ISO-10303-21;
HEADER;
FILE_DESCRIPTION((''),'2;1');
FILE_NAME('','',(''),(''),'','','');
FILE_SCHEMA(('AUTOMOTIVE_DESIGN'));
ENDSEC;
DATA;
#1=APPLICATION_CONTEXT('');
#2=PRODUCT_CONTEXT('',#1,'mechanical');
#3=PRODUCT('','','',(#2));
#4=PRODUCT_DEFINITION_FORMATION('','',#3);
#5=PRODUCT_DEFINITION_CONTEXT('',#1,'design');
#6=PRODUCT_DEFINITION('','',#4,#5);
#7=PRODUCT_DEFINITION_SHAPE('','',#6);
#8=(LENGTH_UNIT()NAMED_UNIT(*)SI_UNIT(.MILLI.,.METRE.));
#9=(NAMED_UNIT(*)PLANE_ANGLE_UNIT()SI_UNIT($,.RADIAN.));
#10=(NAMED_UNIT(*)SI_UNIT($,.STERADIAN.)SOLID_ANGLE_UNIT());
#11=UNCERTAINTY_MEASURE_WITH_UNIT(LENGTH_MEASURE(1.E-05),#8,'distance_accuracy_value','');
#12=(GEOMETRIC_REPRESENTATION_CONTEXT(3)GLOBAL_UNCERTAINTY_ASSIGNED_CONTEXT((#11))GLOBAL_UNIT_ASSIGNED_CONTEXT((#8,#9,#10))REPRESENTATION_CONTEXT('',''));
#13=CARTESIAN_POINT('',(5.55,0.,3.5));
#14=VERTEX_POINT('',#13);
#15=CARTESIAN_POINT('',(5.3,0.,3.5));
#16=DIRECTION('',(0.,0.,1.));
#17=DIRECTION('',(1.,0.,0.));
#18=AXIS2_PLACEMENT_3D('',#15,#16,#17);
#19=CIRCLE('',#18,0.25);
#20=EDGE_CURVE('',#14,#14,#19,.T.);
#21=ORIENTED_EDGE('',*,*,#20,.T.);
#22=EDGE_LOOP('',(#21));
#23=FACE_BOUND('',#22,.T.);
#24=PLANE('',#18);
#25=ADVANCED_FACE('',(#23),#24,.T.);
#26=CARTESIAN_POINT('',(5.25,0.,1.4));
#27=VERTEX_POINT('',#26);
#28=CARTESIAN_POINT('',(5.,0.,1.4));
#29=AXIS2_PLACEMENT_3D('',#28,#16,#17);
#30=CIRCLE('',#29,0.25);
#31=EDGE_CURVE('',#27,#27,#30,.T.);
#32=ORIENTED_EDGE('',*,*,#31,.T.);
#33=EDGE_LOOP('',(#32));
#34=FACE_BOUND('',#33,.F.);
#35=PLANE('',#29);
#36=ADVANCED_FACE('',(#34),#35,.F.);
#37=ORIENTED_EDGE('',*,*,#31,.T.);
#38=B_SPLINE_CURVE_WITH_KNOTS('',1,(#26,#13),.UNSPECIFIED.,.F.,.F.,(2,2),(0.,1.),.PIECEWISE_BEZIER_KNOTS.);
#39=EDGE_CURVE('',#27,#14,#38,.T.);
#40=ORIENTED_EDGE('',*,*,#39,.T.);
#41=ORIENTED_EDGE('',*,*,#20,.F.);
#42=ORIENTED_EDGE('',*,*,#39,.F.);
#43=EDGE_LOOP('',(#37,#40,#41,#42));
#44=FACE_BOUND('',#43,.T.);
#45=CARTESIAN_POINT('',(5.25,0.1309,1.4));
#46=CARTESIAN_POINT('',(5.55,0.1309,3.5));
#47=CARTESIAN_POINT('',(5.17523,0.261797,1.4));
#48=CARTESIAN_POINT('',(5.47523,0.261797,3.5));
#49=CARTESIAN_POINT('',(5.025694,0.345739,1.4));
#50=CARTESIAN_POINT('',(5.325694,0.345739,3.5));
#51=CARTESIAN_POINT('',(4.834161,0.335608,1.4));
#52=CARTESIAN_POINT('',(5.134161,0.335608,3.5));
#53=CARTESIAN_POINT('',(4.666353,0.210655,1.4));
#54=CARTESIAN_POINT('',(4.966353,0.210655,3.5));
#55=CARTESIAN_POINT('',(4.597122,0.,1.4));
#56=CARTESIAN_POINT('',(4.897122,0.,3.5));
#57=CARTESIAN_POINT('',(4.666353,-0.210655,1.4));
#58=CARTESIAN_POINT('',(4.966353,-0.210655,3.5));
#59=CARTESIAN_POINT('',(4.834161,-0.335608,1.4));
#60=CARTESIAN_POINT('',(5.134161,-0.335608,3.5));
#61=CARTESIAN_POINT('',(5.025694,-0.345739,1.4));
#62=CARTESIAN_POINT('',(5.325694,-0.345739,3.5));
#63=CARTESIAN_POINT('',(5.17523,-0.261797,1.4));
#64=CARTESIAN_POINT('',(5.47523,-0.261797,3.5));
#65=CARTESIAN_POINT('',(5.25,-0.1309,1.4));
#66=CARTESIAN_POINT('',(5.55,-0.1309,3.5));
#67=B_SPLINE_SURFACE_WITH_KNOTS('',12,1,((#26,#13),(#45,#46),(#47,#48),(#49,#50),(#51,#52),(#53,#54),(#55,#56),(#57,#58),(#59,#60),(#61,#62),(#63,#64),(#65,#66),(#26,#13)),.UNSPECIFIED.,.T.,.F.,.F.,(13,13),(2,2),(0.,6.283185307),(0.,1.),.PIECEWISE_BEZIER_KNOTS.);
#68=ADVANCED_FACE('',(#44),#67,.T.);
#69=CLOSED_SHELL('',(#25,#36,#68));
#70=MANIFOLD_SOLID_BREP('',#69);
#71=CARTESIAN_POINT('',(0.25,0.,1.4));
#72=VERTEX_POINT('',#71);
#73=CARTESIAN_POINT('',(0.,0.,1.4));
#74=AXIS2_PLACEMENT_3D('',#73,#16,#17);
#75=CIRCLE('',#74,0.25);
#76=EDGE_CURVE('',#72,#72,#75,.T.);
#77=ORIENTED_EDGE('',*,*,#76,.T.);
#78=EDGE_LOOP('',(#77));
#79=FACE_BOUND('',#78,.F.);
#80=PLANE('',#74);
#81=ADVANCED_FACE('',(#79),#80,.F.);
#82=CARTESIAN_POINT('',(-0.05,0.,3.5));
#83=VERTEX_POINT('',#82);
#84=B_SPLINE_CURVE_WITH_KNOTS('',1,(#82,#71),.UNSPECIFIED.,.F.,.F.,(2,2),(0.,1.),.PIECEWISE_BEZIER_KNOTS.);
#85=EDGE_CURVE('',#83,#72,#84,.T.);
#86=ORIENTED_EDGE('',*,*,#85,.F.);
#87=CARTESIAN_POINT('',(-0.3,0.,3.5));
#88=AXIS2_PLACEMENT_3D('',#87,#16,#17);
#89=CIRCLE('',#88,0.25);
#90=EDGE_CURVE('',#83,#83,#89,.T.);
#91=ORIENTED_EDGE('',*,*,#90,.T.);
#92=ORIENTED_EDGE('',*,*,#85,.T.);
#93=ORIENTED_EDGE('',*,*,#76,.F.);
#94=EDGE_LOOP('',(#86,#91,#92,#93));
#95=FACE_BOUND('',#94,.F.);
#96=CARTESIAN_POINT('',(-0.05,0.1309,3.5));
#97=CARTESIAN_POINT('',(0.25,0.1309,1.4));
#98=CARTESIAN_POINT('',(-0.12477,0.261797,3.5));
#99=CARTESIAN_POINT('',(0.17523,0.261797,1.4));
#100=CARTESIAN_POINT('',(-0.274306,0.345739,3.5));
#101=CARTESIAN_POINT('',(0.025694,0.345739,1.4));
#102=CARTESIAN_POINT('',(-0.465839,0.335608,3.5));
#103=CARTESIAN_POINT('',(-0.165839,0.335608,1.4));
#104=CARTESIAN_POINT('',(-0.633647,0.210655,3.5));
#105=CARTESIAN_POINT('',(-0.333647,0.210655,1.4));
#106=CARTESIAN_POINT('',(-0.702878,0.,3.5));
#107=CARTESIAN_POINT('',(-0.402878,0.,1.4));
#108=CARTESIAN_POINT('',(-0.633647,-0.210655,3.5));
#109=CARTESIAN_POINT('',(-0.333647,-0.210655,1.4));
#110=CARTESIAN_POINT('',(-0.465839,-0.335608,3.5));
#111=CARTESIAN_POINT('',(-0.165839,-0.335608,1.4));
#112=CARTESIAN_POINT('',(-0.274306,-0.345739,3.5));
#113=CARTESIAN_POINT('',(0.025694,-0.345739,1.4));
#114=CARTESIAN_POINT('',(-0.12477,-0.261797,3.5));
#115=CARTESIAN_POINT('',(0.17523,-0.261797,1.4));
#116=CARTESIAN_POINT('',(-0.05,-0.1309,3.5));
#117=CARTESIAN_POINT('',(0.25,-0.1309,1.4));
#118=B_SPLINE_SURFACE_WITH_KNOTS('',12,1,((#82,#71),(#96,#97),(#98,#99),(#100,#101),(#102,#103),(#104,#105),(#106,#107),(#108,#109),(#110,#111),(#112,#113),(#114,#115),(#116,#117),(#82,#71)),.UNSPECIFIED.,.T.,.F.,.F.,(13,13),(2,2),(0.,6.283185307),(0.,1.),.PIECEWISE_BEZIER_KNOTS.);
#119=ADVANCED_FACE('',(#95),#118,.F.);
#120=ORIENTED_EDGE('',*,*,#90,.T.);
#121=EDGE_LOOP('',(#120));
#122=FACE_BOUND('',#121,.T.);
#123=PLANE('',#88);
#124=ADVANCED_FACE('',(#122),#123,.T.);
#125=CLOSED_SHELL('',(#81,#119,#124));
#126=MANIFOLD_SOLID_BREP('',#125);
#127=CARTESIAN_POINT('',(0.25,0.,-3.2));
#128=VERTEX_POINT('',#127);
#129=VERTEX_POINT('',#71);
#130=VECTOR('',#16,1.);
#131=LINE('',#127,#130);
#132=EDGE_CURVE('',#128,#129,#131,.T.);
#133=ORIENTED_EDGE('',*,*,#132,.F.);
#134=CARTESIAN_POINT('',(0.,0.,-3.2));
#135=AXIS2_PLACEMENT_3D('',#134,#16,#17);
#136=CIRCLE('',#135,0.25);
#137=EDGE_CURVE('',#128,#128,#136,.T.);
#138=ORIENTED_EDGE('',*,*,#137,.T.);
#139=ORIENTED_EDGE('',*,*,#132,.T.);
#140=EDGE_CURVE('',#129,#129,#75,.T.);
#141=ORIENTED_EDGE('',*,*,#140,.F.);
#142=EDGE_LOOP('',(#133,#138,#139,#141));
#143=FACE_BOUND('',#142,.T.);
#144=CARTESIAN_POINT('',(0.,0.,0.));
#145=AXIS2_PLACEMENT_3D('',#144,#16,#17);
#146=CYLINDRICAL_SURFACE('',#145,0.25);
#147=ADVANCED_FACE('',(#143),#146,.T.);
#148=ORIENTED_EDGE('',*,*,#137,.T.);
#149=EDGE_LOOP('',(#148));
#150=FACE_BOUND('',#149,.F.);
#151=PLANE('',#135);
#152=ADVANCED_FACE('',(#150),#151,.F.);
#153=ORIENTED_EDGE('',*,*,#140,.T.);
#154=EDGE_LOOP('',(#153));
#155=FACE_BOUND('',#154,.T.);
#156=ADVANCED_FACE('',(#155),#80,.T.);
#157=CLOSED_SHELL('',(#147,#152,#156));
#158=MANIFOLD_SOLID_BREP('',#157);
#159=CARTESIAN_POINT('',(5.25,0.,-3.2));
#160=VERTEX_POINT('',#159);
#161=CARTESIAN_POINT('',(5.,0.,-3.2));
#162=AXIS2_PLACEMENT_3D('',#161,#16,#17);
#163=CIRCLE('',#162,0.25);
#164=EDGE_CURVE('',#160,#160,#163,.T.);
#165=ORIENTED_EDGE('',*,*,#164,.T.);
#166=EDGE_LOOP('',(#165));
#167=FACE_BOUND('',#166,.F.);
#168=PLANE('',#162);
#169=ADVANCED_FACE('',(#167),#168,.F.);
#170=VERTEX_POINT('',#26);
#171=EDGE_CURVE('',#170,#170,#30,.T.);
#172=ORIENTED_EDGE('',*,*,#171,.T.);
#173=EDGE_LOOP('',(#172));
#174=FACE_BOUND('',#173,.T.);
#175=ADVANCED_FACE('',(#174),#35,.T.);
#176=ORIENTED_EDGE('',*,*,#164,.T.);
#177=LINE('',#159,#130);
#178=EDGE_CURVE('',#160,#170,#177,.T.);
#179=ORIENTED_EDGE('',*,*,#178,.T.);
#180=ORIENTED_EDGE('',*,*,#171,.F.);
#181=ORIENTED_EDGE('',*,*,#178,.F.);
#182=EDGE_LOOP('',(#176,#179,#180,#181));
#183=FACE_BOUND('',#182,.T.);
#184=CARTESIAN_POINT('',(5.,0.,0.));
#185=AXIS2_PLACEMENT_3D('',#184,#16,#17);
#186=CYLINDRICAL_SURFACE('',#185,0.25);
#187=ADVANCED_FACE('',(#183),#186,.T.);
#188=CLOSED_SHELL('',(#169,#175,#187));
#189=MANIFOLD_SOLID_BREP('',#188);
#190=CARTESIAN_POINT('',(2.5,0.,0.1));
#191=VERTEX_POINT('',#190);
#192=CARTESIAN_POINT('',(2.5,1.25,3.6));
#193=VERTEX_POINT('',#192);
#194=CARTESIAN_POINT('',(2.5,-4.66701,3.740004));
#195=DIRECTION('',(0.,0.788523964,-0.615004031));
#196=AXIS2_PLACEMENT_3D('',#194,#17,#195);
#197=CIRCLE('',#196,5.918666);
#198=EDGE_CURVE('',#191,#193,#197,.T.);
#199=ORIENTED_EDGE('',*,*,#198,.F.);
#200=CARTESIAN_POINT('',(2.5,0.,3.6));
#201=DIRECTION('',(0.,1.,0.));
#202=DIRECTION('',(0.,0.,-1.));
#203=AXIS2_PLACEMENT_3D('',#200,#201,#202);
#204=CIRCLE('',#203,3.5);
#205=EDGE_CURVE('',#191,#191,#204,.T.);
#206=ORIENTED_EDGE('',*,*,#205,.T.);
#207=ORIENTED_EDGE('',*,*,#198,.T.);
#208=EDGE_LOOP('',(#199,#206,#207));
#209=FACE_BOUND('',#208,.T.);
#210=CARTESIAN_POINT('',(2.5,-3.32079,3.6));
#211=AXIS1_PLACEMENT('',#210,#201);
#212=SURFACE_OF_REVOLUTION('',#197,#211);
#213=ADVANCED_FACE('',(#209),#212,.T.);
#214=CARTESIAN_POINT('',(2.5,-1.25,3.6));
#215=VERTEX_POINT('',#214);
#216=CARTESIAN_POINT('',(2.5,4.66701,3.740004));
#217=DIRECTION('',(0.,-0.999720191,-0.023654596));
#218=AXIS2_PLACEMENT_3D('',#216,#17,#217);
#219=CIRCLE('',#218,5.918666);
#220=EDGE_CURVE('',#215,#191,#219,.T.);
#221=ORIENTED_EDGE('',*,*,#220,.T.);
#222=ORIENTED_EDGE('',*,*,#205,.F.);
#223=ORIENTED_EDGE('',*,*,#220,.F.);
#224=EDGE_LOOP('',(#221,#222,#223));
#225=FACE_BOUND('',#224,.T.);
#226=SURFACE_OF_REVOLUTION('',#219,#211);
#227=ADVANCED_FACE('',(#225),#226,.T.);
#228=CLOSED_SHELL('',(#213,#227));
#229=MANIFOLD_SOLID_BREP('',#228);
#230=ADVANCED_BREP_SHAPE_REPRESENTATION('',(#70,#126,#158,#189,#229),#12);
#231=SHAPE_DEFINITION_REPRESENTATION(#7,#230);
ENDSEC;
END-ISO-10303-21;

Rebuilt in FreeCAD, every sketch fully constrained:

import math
import FreeCAD as App
import Part
import Sketcher
from FreeCAD import Vector
Q = App.Units.Quantity

doc = App.newDocument("Part")
body = doc.addObject("PartDesign::Body", "Body")
body.AllowCompound = True

sketch1 = body.newObject("Sketcher::SketchObject", "Sketch")
sketch1.AttachmentSupport = (doc.getObject("XY_Plane"), [""])
sketch1.MapMode = "FlatFace"
sketch1.addGeometry([
    Part.Circle(Vector(0, 0, 0), Vector(0, 0, 1), 0.25),
    Part.Circle(Vector(5, 0, 0), Vector(0, 0, 1), 0.25),
], False)
sketch1.addConstraint([
    Sketcher.Constraint("Coincident", 0, 3, -1, 1),
    Sketcher.Constraint("Equal", 0, 1),
    Sketcher.Constraint("PointOnObject", 1, 3, -1),
    Sketcher.Constraint("Diameter", 0, Q("0.5 mm")),
    Sketcher.Constraint("DistanceX", -1, 1, 1, 3, Q("5 mm")),
])
pad1 = body.newObject("PartDesign::Pad", "Pad")
pad1.Profile = sketch1
pad1.Type = "TwoLengths"
pad1.Length = 1.4
pad1.Length2 = 3.2
body2 = doc.addObject("PartDesign::Body", "Body001")

sketch2 = body2.newObject("Sketcher::SketchObject", "Sketch001")
sketch2.AttachmentSupport = (doc.getObject("YZ_Plane001"), [""])
sketch2.MapMode = "FlatFace"
sketch2.AttachmentOffset = App.Placement(Vector(0, 0, 2.5), App.Rotation())
sketch2.addGeometry([
    Part.LineSegment(Vector(1.2, 3.6, 0), Vector(-1.2, 3.6, 0)),
    Part.ArcOfCircle(Part.Circle(Vector(4.7, 3.7, 0), Vector(0, 0, 1), 5.9), math.radians(-179), math.radians(-142)),
    Part.ArcOfCircle(Part.Circle(Vector(-4.7, 3.7, 0), Vector(0, 0, 1), 5.9), math.radians(-38), math.radians(-1)),
], False)
sketch2.addGeometry(Part.LineSegment(Vector(-4.7, 3.6, 0), Vector(4.7, 3.6, 0)), True)
sketch2.addConstraint([
    Sketcher.Constraint("Coincident", 0, 2, 1, 1),
    Sketcher.Constraint("Coincident", 1, 2, 2, 1),
    Sketcher.Constraint("Coincident", 2, 2, 0, 1),
    Sketcher.Constraint("Horizontal", 0),
    Sketcher.Constraint("Horizontal", 3),
    Sketcher.Constraint("Equal", 1, 2),
    Sketcher.Constraint("Symmetric", 1, 3, 2, 3, -2),
    Sketcher.Constraint("Horizontal", 2, 2, 3, 1),
    Sketcher.Constraint("Vertical", 2, 3, 3, 1),
    Sketcher.Constraint("Vertical", 1, 3, 3, 2),
    Sketcher.Constraint("DistanceX", 0, 2, 0, 1, Q("2.5 mm")),
    Sketcher.Constraint("DistanceY", -1, 1, 0, 2, Q("3.6 mm")),
    Sketcher.Constraint("DistanceY", -1, 1, 1, 2, Q("0.1 mm")),
    Sketcher.Constraint("Radius", 1, Q("5.918666 mm")),
])
revolution = body2.newObject("PartDesign::Revolution", "Revolution")
revolution.Profile = sketch2
revolution.ReferenceAxis = (sketch2, ["Axis0"])
revolution.Angle = 360
body3 = doc.addObject("PartDesign::Body", "Body002")

sketch3 = body3.newObject("Sketcher::SketchObject", "Sketch002")
sketch3.AttachmentSupport = (doc.getObject("XY_Plane002"), [""])
sketch3.MapMode = "FlatFace"
sketch3.AttachmentOffset = App.Placement(Vector(0, 0, 3.5), App.Rotation())
sketch3.addGeometry(Part.Circle(Vector(-0.3, 0, 0), Vector(0, 0, 1), 0.25), False)
sketch3.addConstraint([
    Sketcher.Constraint("PointOnObject", 0, 3, -1),
    Sketcher.Constraint("Diameter", 0, Q("0.5 mm")),
    Sketcher.Constraint("DistanceX", 0, 3, -1, 1, Q("0.3 mm")),
])

sketch4 = body3.newObject("Sketcher::SketchObject", "Sketch003")
sketch4.AttachmentSupport = (doc.getObject("XY_Plane002"), [""])
sketch4.MapMode = "FlatFace"
sketch4.AttachmentOffset = App.Placement(Vector(0, 0, 1.4), App.Rotation())
sketch4.addGeometry(Part.Circle(Vector(0, 0, 0), Vector(0, 0, 1), 0.25), False)
sketch4.addConstraint([
    Sketcher.Constraint("Coincident", 0, 3, -1, 1),
    Sketcher.Constraint("Diameter", 0, Q("0.5 mm")),
])

additiveloft = body3.newObject("PartDesign::AdditiveLoft", "AdditiveLoft")
additiveloft.Profile = sketch3
additiveloft.Sections = [sketch4]
body4 = doc.addObject("PartDesign::Body", "Body003")

sketch5 = body4.newObject("Sketcher::SketchObject", "Sketch004")
sketch5.AttachmentSupport = (doc.getObject("XY_Plane003"), [""])
sketch5.MapMode = "FlatFace"
sketch5.AttachmentOffset = App.Placement(Vector(0, 0, 1.4), App.Rotation())
sketch5.addGeometry(Part.Circle(Vector(5, 0, 0), Vector(0, 0, 1), 0.25), False)
sketch5.addConstraint([
    Sketcher.Constraint("PointOnObject", 0, 3, -1),
    Sketcher.Constraint("Diameter", 0, Q("0.5 mm")),
    Sketcher.Constraint("DistanceX", -1, 1, 0, 3, Q("5 mm")),
])

sketch6 = body4.newObject("Sketcher::SketchObject", "Sketch005")
sketch6.AttachmentSupport = (doc.getObject("XY_Plane003"), [""])
sketch6.MapMode = "FlatFace"
sketch6.AttachmentOffset = App.Placement(Vector(0, 0, 3.5), App.Rotation())
sketch6.addGeometry(Part.Circle(Vector(5.3, 0, 0), Vector(0, 0, 1), 0.25), False)
sketch6.addConstraint([
    Sketcher.Constraint("PointOnObject", 0, 3, -1),
    Sketcher.Constraint("Diameter", 0, Q("0.5 mm")),
    Sketcher.Constraint("DistanceX", -1, 1, 0, 3, Q("5.3 mm")),
])

additiveloft2 = body4.newObject("PartDesign::AdditiveLoft", "AdditiveLoft001")
additiveloft2.Profile = sketch5
additiveloft2.Sections = [sketch6]

doc.recompute()
